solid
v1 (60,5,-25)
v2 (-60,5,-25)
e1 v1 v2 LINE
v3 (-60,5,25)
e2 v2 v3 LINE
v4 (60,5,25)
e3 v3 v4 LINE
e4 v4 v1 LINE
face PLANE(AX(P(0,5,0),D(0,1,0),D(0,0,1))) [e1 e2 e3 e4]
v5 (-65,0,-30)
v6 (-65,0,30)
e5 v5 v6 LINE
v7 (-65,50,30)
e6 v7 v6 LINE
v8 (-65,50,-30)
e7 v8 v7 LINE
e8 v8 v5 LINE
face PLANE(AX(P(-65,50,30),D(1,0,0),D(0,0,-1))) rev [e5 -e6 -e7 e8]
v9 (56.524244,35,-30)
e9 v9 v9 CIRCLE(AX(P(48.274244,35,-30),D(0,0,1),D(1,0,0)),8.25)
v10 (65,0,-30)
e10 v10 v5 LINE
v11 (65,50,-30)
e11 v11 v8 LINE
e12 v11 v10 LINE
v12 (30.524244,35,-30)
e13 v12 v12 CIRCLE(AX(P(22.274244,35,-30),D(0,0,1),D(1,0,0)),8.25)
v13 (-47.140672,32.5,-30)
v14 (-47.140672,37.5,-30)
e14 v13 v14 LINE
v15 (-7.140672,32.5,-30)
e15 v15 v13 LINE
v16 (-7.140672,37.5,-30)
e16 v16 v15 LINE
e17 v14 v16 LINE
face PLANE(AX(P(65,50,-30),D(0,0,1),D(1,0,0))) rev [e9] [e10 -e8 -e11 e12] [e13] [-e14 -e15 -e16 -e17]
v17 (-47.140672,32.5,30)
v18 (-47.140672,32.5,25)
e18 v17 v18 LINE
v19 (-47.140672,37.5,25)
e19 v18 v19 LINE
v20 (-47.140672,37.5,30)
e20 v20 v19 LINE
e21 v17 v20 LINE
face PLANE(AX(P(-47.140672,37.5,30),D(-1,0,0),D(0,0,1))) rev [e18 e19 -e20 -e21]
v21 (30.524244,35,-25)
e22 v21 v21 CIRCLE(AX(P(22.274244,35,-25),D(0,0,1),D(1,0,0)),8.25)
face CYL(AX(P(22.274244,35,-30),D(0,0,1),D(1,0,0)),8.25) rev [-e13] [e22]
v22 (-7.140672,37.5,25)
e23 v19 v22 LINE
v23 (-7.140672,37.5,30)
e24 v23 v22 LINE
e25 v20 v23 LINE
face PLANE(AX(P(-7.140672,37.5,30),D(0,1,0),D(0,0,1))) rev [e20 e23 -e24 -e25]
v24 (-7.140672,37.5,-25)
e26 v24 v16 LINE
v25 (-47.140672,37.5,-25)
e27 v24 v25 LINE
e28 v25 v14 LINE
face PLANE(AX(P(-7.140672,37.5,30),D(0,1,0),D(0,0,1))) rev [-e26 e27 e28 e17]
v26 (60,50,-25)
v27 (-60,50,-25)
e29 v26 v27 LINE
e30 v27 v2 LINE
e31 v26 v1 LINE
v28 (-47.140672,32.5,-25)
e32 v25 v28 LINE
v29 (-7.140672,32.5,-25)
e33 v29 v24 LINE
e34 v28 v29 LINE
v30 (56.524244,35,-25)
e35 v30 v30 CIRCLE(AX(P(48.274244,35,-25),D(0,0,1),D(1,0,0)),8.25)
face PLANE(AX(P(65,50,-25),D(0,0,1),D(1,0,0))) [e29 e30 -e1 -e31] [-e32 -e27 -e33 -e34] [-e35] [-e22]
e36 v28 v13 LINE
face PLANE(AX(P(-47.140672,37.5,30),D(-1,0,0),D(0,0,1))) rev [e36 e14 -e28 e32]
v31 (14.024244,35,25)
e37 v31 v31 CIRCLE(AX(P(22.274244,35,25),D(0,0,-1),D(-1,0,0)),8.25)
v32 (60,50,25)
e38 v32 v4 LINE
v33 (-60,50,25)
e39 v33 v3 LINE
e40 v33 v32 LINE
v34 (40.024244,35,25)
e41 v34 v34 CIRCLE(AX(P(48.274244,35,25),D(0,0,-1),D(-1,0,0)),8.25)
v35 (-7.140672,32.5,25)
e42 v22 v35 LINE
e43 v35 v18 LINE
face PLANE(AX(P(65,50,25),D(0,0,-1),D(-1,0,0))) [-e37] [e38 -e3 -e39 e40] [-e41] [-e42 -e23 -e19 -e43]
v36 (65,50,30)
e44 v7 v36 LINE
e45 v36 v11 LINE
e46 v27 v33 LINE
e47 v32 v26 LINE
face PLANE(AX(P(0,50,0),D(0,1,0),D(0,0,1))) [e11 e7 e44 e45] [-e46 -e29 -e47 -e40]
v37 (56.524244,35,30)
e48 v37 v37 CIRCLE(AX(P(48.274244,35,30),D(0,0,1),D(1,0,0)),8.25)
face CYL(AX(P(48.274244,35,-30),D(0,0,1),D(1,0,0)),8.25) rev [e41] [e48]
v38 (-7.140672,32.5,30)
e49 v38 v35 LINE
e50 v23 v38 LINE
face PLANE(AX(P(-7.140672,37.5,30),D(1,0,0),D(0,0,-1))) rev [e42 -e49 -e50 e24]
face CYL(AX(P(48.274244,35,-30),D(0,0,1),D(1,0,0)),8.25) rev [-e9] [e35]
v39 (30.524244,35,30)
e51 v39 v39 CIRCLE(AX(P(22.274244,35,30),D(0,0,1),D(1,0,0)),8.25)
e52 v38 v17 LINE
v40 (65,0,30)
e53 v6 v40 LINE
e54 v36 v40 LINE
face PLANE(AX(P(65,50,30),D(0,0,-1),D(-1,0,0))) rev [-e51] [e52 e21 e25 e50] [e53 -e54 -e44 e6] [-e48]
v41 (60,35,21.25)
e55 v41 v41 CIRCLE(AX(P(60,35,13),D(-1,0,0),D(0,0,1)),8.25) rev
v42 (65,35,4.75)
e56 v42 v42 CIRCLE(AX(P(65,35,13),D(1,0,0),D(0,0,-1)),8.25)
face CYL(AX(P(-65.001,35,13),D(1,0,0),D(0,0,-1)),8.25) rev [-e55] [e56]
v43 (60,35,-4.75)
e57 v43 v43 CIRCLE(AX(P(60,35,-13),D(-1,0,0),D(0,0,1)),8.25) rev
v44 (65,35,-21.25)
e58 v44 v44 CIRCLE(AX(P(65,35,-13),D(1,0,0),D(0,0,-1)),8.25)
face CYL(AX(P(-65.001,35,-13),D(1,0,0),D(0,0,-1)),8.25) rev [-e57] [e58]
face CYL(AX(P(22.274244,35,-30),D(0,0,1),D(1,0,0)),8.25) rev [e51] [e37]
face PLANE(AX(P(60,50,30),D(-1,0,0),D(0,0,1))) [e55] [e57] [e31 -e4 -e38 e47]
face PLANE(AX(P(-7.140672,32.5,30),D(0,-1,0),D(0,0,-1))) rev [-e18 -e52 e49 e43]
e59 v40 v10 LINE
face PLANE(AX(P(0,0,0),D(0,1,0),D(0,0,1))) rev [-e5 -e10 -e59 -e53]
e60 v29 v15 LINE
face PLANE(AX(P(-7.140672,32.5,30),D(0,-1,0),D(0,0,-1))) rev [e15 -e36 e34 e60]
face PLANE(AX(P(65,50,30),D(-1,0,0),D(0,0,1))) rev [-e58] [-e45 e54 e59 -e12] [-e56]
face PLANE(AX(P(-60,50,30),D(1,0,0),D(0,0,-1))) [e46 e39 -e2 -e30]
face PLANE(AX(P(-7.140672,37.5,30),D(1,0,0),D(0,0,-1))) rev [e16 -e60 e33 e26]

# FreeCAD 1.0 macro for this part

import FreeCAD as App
import Part
import Sketcher


def faces_at(feature, points):
    """Names of the faces that lie closest to the given points."""
    faces = feature.Shape.Faces
    near = lambda p: min(range(len(faces)), key=lambda i: faces[i].distToShape(Part.Vertex(*p))[0])
    return sorted({f"Face{near(p) + 1}" for p in points})

doc = App.newDocument("Part")
params = doc.addObject("Spreadsheet::Sheet", "Params")
for row, (alias, value) in enumerate([
    ("sketch1_width", "130 mm"),
    ("sketch1_height", "60 mm"),
    ("pad1_length", "50 mm"),
    ("thickness_wall", "5 mm"),
    ("sketch2_diameter", "16.5 mm"),
    ("sketch3_diameter", "16.5 mm"),
    ("sketch4_diameter", "16.5 mm"),
    ("sketch5_width", "40 mm"),
    ("sketch5_height", "5 mm"),
], start=1):
    params.set(f"A{row}", alias)
    params.set(f"B{row}", "=" + value)
    params.setAlias(f"B{row}", alias)

body = doc.addObject("PartDesign::Body", "Body")

# Sketch on XZ plane
sketch1 = body.newObject("Sketcher::SketchObject", "Sketch")
sketch1.AttachmentSupport = (doc.getObject("XZ_Plane"), [""])
sketch1.MapMode = "FlatFace"
sketch1.addGeometry([
    Part.LineSegment(App.Vector(-65, -30, 0), App.Vector(-65, 30, 0)),
    Part.LineSegment(App.Vector(-65, 30, 0), App.Vector(65, 30, 0)),
    Part.LineSegment(App.Vector(65, 30, 0), App.Vector(65, -30, 0)),
    Part.LineSegment(App.Vector(65, -30, 0), App.Vector(-65, -30, 0)),
], False)
sketch1.addConstraint([
    Sketcher.Constraint("Coincident", 0, 2, 1, 1),
    Sketcher.Constraint("Coincident", 1, 2, 2, 1),
    Sketcher.Constraint("Coincident", 2, 2, 3, 1),
    Sketcher.Constraint("Coincident", 3, 2, 0, 1),
    Sketcher.Constraint("Vertical", 0),
    Sketcher.Constraint("Horizontal", 1),
    Sketcher.Constraint("Vertical", 2),
    Sketcher.Constraint("Horizontal", 3),
    Sketcher.Constraint("Symmetric", 0, 2, 2, 2, -1, 1),
    Sketcher.Constraint("DistanceX", 1, 1, 1, 2, 130.0),
    Sketcher.Constraint("DistanceY", 0, 1, 0, 2, 60.0),
])
sketch1.setExpression("Constraints[9]", "Params.sketch1_width")
sketch1.setExpression("Constraints[10]", "Params.sketch1_height")
pad1 = body.newObject("PartDesign::Pad", "Pad")
pad1.Profile = sketch1
pad1.setExpression("Length", "Params.pad1_length")
pad1.Reversed = True
doc.recompute()

thickness = body.newObject("PartDesign::Thickness", "Thickness")
thickness.Base = (pad1, faces_at(pad1, [(0, 50, 0)]))
thickness.setExpression("Value", "Params.thickness_wall")
thickness.Reversed = True
thickness.Join = "Intersection"

# Sketch on YZ plane
sketch2 = body.newObject("Sketcher::SketchObject", "Sketch001")
sketch2.AttachmentSupport = (doc.getObject("YZ_Plane"), [""])
sketch2.MapMode = "FlatFace"
sketch2.AttachmentOffset = App.Placement(App.Vector(0, 0, 65), App.Rotation())
sketch2.addGeometry(Part.Circle(App.Vector(35, 13, 0), App.Vector(0, 0, 1), 8), False)
sketch2.addConstraint([
    Sketcher.Constraint("Diameter", 0, 16.5),
    Sketcher.Constraint("DistanceX", -1, 1, 0, 3, 35.0),
    Sketcher.Constraint("DistanceY", -1, 1, 0, 3, 13.0),
])
sketch2.setExpression("Constraints[0]", "Params.sketch2_diameter")
pocket1 = body.newObject("PartDesign::Pocket", "Pocket")
pocket1.Profile = sketch2
pocket1.Type = "UpToFirst"

# Sketch on YZ plane
sketch3 = body.newObject("Sketcher::SketchObject", "Sketch002")
sketch3.AttachmentSupport = (doc.getObject("YZ_Plane"), [""])
sketch3.MapMode = "FlatFace"
sketch3.AttachmentOffset = App.Placement(App.Vector(0, 0, 65), App.Rotation())
sketch3.addGeometry(Part.Circle(App.Vector(35, -13, 0), App.Vector(0, 0, 1), 8), False)
sketch3.addConstraint([
    Sketcher.Constraint("Diameter", 0, 16.5),
    Sketcher.Constraint("DistanceX", -1, 1, 0, 3, 35.0),
    Sketcher.Constraint("DistanceY", 0, 3, -1, 1, 13.0),
])
sketch3.setExpression("Constraints[0]", "Params.sketch3_diameter")
pocket2 = body.newObject("PartDesign::Pocket", "Pocket001")
pocket2.Profile = sketch3
pocket2.Type = "UpToFirst"

# Sketch on XY plane
sketch4 = body.newObject("Sketcher::SketchObject", "Sketch003")
sketch4.AttachmentSupport = (doc.getObject("XY_Plane"), [""])
sketch4.MapMode = "FlatFace"
sketch4.AttachmentOffset = App.Placement(App.Vector(0, 0, 30), App.Rotation())
sketch4.addGeometry([
    Part.Circle(App.Vector(22, 35, 0), App.Vector(0, 0, 1), 8),
    Part.Circle(App.Vector(48, 35, 0), App.Vector(0, 0, 1), 8),
], False)
sketch4.addConstraint([
    Sketcher.Constraint("Equal", 0, 1),
    Sketcher.Constraint("Horizontal", 0, 3, 1, 3),
    Sketcher.Constraint("Diameter", 0, 16.5),
    Sketcher.Constraint("DistanceY", -1, 1, 0, 3, 35.0),
    Sketcher.Constraint("DistanceX", 0, 3, 1, 3, 26.0),
    Sketcher.Constraint("DistanceX", -1, 1, 0, 3, 22.274244),
])
sketch4.setExpression("Constraints[2]", "Params.sketch4_diameter")
pocket3 = body.newObject("PartDesign::Pocket", "Pocket002")
pocket3.Profile = sketch4
pocket3.Type = "ThroughAll"

# Sketch on XY plane
sketch5 = body.newObject("Sketcher::SketchObject", "Sketch004")
sketch5.AttachmentSupport = (doc.getObject("XY_Plane"), [""])
sketch5.MapMode = "FlatFace"
sketch5.AttachmentOffset = App.Placement(App.Vector(0, 0, -30), App.Rotation())
sketch5.addGeometry([
    Part.LineSegment(App.Vector(-7, 38, 0), App.Vector(-7, 32, 0)),
    Part.LineSegment(App.Vector(-7, 32, 0), App.Vector(-47, 32, 0)),
    Part.LineSegment(App.Vector(-47, 32, 0), App.Vector(-47, 38, 0)),
    Part.LineSegment(App.Vector(-47, 38, 0), App.Vector(-7, 38, 0)),
], False)
sketch5.addConstraint([
    Sketcher.Constraint("Coincident", 0, 2, 1, 1),
    Sketcher.Constraint("Coincident", 1, 2, 2, 1),
    Sketcher.Constraint("Coincident", 2, 2, 3, 1),
    Sketcher.Constraint("Coincident", 3, 2, 0, 1),
    Sketcher.Constraint("Vertical", 0),
    Sketcher.Constraint("Horizontal", 1),
    Sketcher.Constraint("Vertical", 2),
    Sketcher.Constraint("Horizontal", 3),
    Sketcher.Constraint("DistanceX", 1, 2, 1, 1, 40.0),
    Sketcher.Constraint("DistanceY", 0, 2, 0, 1, 5.0),
    Sketcher.Constraint("DistanceY", -1, 1, 0, 2, 32.5),
    Sketcher.Constraint("DistanceX", 0, 2, -1, 1, 7.140672),
])
sketch5.setExpression("Constraints[8]", "Params.sketch5_width")
sketch5.setExpression("Constraints[9]", "Params.sketch5_height")
pocket4 = body.newObject("PartDesign::Pocket", "Pocket003")
pocket4.Profile = sketch5
pocket4.Type = "ThroughAll"
pocket4.Reversed = True

doc.recompute()
